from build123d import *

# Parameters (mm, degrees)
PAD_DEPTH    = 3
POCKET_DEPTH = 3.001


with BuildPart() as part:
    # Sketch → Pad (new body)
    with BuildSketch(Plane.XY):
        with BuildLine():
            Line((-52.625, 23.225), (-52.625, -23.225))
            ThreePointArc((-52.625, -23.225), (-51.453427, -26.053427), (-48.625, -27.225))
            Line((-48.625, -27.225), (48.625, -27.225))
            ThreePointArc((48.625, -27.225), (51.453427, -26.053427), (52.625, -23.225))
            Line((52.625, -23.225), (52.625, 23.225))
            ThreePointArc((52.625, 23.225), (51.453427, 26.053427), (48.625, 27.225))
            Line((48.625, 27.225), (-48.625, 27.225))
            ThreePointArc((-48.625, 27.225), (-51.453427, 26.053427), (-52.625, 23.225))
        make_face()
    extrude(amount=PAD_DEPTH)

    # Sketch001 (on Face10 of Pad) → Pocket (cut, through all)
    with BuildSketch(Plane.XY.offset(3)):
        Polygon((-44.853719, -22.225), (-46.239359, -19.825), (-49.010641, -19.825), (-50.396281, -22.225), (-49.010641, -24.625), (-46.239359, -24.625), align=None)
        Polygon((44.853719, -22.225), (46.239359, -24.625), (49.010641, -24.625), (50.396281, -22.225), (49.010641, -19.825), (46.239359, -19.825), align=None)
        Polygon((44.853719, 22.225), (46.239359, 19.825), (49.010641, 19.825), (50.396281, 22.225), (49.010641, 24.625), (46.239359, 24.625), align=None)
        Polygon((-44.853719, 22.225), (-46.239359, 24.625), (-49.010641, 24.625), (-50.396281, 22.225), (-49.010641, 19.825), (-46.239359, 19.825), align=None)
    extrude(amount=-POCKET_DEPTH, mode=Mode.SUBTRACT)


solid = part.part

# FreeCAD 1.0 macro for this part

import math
import FreeCAD as App
import Part
import Sketcher
Q = App.Units.Quantity

doc = App.newDocument("Part")
body = doc.addObject("PartDesign::Body", "Body")

# Sketch on XY plane
sketch1 = body.newObject("Sketcher::SketchObject", "Sketch")
sketch1.AttachmentSupport = (doc.getObject("XY_Plane"), [""])
sketch1.MapMode = "FlatFace"
sketch1.addGeometry(Part.LineSegment(App.Vector(-52.625, 23.225, 0), App.Vector(-52.625, -23.225, 0)), False)
sketch1.addGeometry(Part.ArcOfCircle(Part.Circle(App.Vector(-48.625, -23.225, 0), App.Vector(0, 0, 1), 4), math.radians(-179.999994), math.radians(-90.000006)), False)
sketch1.addGeometry(Part.LineSegment(App.Vector(-48.625, -27.225, 0), App.Vector(48.625, -27.225, 0)), False)
sketch1.addGeometry(Part.ArcOfCircle(Part.Circle(App.Vector(48.625, -23.225, 0), App.Vector(0, 0, 1), 4), math.radians(-89.999994), math.radians(-0.000006)), False)
sketch1.addGeometry(Part.LineSegment(App.Vector(52.625, -23.225, 0), App.Vector(52.625, 23.225, 0)), False)
sketch1.addGeometry(Part.ArcOfCircle(Part.Circle(App.Vector(48.625, 23.225, 0), App.Vector(0, 0, 1), 4), math.radians(0.000006), math.radians(89.999994)), False)
sketch1.addGeometry(Part.LineSegment(App.Vector(48.625, 27.225, 0), App.Vector(-48.625, 27.225, 0)), False)
sketch1.addGeometry(Part.ArcOfCircle(Part.Circle(App.Vector(-48.625, 23.225, 0), App.Vector(0, 0, 1), 4), math.radians(90.000006), math.radians(179.999994)), False)
sketch1.addConstraint(Sketcher.Constraint("Tangent", 0, 2, 1, 1))
sketch1.addConstraint(Sketcher.Constraint("Tangent", 1, 2, 2, 1))
sketch1.addConstraint(Sketcher.Constraint("Tangent", 2, 2, 3, 1))
sketch1.addConstraint(Sketcher.Constraint("Tangent", 3, 2, 4, 1))
sketch1.addConstraint(Sketcher.Constraint("Tangent", 4, 2, 5, 1))
sketch1.addConstraint(Sketcher.Constraint("Tangent", 5, 2, 6, 1))
sketch1.addConstraint(Sketcher.Constraint("Tangent", 6, 2, 7, 1))
sketch1.addConstraint(Sketcher.Constraint("Tangent", 7, 2, 0, 1))
sketch1.addConstraint(Sketcher.Constraint("Vertical", 0))
sketch1.addConstraint(Sketcher.Constraint("Horizontal", 2))
sketch1.addConstraint(Sketcher.Constraint("Vertical", 4))
sketch1.addConstraint(Sketcher.Constraint("Horizontal", 6))
sketch1.addConstraint(Sketcher.Constraint("Equal", 1, 3))
sketch1.addConstraint(Sketcher.Constraint("Equal", 3, 5))
sketch1.addConstraint(Sketcher.Constraint("Equal", 5, 7))
sketch1.addConstraint(Sketcher.Constraint("Symmetric", 1, 3, 5, 3, -1, 1))
sketch1.addConstraint(Sketcher.Constraint("Radius", 1, Q("4 mm")))
sketch1.addConstraint(Sketcher.Constraint("DistanceX", 2, 1, 2, 2, Q("97.25 mm")))
sketch1.addConstraint(Sketcher.Constraint("DistanceY", 0, 2, 0, 1, Q("46.45 mm")))
pad1 = body.newObject("PartDesign::Pad", "Pad")
pad1.Profile = sketch1
pad1.Length = 3

# Sketch on XY plane
sketch2 = body.newObject("Sketcher::SketchObject", "Sketch001")
sketch2.AttachmentSupport = (doc.getObject("XY_Plane"), [""])
sketch2.MapMode = "FlatFace"
sketch2.AttachmentOffset = App.Placement(App.Vector(0, 0, 3), App.Rotation())
sketch2.addGeometry(Part.LineSegment(App.Vector(-44.853719, -22.225, 0), App.Vector(-46.239359, -19.825, 0)), False)
sketch2.addGeometry(Part.LineSegment(App.Vector(-46.239359, -19.825, 0), App.Vector(-49.010641, -19.825, 0)), False)
sketch2.addGeometry(Part.LineSegment(App.Vector(-49.010641, -19.825, 0), App.Vector(-50.396281, -22.225, 0)), False)
sketch2.addGeometry(Part.LineSegment(App.Vector(-50.396281, -22.225, 0), App.Vector(-49.010641, -24.625, 0)), False)
sketch2.addGeometry(Part.LineSegment(App.Vector(-49.010641, -24.625, 0), App.Vector(-46.239359, -24.625, 0)), False)
sketch2.addGeometry(Part.LineSegment(App.Vector(-46.239359, -24.625, 0), App.Vector(-44.853719, -22.225, 0)), False)
sketch2.addGeometry(Part.LineSegment(App.Vector(44.853719, -22.225, 0), App.Vector(46.239359, -24.625, 0)), False)
sketch2.addGeometry(Part.LineSegment(App.Vector(46.239359, -24.625, 0), App.Vector(49.010641, -24.625, 0)), False)
sketch2.addGeometry(Part.LineSegment(App.Vector(49.010641, -24.625, 0), App.Vector(50.396281, -22.225, 0)), False)
sketch2.addGeometry(Part.LineSegment(App.Vector(50.396281, -22.225, 0), App.Vector(49.010641, -19.825, 0)), False)
sketch2.addGeometry(Part.LineSegment(App.Vector(49.010641, -19.825, 0), App.Vector(46.239359, -19.825, 0)), False)
sketch2.addGeometry(Part.LineSegment(App.Vector(46.239359, -19.825, 0), App.Vector(44.853719, -22.225, 0)), False)
sketch2.addGeometry(Part.LineSegment(App.Vector(44.853719, 22.225, 0), App.Vector(46.239359, 19.825, 0)), False)
sketch2.addGeometry(Part.LineSegment(App.Vector(46.239359, 19.825, 0), App.Vector(49.010641, 19.825, 0)), False)
sketch2.addGeometry(Part.LineSegment(App.Vector(49.010641, 19.825, 0), App.Vector(50.396281, 22.225, 0)), False)
sketch2.addGeometry(Part.LineSegment(App.Vector(50.396281, 22.225, 0), App.Vector(49.010641, 24.625, 0)), False)
sketch2.addGeometry(Part.LineSegment(App.Vector(49.010641, 24.625, 0), App.Vector(46.239359, 24.625, 0)), False)
sketch2.addGeometry(Part.LineSegment(App.Vector(46.239359, 24.625, 0), App.Vector(44.853719, 22.225, 0)), False)
sketch2.addGeometry(Part.LineSegment(App.Vector(-44.853719, 22.225, 0), App.Vector(-46.239359, 24.625, 0)), False)
sketch2.addGeometry(Part.LineSegment(App.Vector(-46.239359, 24.625, 0), App.Vector(-49.010641, 24.625, 0)), False)
sketch2.addGeometry(Part.LineSegment(App.Vector(-49.010641, 24.625, 0), App.Vector(-50.396281, 22.225, 0)), False)
sketch2.addGeometry(Part.LineSegment(App.Vector(-50.396281, 22.225, 0), App.Vector(-49.010641, 19.825, 0)), False)
sketch2.addGeometry(Part.LineSegment(App.Vector(-49.010641, 19.825, 0), App.Vector(-46.239359, 19.825, 0)), False)
sketch2.addGeometry(Part.LineSegment(App.Vector(-46.239359, 19.825, 0), App.Vector(-44.853719, 22.225, 0)), False)
sketch2.addConstraint(Sketcher.Constraint("Coincident", 0, 2, 1, 1))
sketch2.addConstraint(Sketcher.Constraint("Coincident", 1, 2, 2, 1))
sketch2.addConstraint(Sketcher.Constraint("Coincident", 2, 2, 3, 1))
sketch2.addConstraint(Sketcher.Constraint("Coincident", 3, 2, 4, 1))
sketch2.addConstraint(Sketcher.Constraint("Coincident", 4, 2, 5, 1))
sketch2.addConstraint(Sketcher.Constraint("Coincident", 5, 2, 0, 1))
sketch2.addConstraint(Sketcher.Constraint("Coincident", 6, 2, 7, 1))
sketch2.addConstraint(Sketcher.Constraint("Coincident", 7, 2, 8, 1))
sketch2.addConstraint(Sketcher.Constraint("Coincident", 8, 2, 9, 1))
sketch2.addConstraint(Sketcher.Constraint("Coincident", 9, 2, 10, 1))
sketch2.addConstraint(Sketcher.Constraint("Coincident", 10, 2, 11, 1))
sketch2.addConstraint(Sketcher.Constraint("Coincident", 11, 2, 6, 1))
sketch2.addConstraint(Sketcher.Constraint("Coincident", 12, 2, 13, 1))
sketch2.addConstraint(Sketcher.Constraint("Coincident", 13, 2, 14, 1))
sketch2.addConstraint(Sketcher.Constraint("Coincident", 14, 2, 15, 1))
sketch2.addConstraint(Sketcher.Constraint("Coincident", 15, 2, 16, 1))
sketch2.addConstraint(Sketcher.Constraint("Coincident", 16, 2, 17, 1))
sketch2.addConstraint(Sketcher.Constraint("Coincident", 17, 2, 12, 1))
sketch2.addConstraint(Sketcher.Constraint("Coincident", 18, 2, 19, 1))
sketch2.addConstraint(Sketcher.Constraint("Coincident", 19, 2, 20, 1))
sketch2.addConstraint(Sketcher.Constraint("Coincident", 20, 2, 21, 1))
sketch2.addConstraint(Sketcher.Constraint("Coincident", 21, 2, 22, 1))
sketch2.addConstraint(Sketcher.Constraint("Coincident", 22, 2, 23, 1))
sketch2.addConstraint(Sketcher.Constraint("Coincident", 23, 2, 18, 1))
sketch2.addConstraint(Sketcher.Constraint("Horizontal", 1))
sketch2.addConstraint(Sketcher.Constraint("Horizontal", 4))
sketch2.addConstraint(Sketcher.Constraint("Horizontal", 7))
sketch2.addConstraint(Sketcher.Constraint("Horizontal", 10))
sketch2.addConstraint(Sketcher.Constraint("Horizontal", 13))
sketch2.addConstraint(Sketcher.Constraint("Horizontal", 16))
sketch2.addConstraint(Sketcher.Constraint("Horizontal", 19))
sketch2.addConstraint(Sketcher.Constraint("Horizontal", 22))
sketch2.addConstraint(Sketcher.Constraint("Symmetric", 0, 2, 12, 2, -1, 1))
sketch2.addConstraint(Sketcher.Constraint("Symmetric", 2, 2, 14, 2, -1, 1))
sketch2.addConstraint(Sketcher.Constraint("Symmetric", 3, 2, 15, 2, -1, 1))
sketch2.addConstraint(Sketcher.Constraint("Symmetric", 5, 2, 17, 2, -1, 1))
sketch2.addConstraint(Sketcher.Constraint("Symmetric", 6, 2, 18, 2, -1, 1))
sketch2.addConstraint(Sketcher.Constraint("Symmetric", 8, 2, 20, 2, -1, 1))
sketch2.addConstraint(Sketcher.Constraint("Symmetric", 9, 2, 21, 2, -1, 1))
sketch2.addConstraint(Sketcher.Constraint("Symmetric", 11, 2, 23, 2, -1, 1))
sketch2.addConstraint(Sketcher.Constraint("Symmetric", 4, 2, 6, 2, -2))
sketch2.addConstraint(Sketcher.Constraint("Symmetric", 2, 2, 8, 2, -2))
sketch2.addConstraint(Sketcher.Constraint("Symmetric", 1, 2, 9, 2, -2))
sketch2.addConstraint(Sketcher.Constraint("Symmetric", 5, 2, 11, 2, -2))
sketch2.addConstraint(Sketcher.Constraint("Parallel", 0, 3))
sketch2.addConstraint(Sketcher.Constraint("Parallel", 2, 5))
sketch2.addConstraint(Sketcher.Constraint("Parallel", 3, 6))
sketch2.addConstraint(Sketcher.Constraint("Parallel", 5, 8))
sketch2.addConstraint(Sketcher.Constraint("Parallel", 8, 11))
sketch2.addConstraint(Sketcher.Constraint("Parallel", 11, 14))
sketch2.addConstraint(Sketcher.Constraint("Parallel", 14, 17))
sketch2.addConstraint(Sketcher.Constraint("Parallel", 17, 20))
sketch2.addConstraint(Sketcher.Constraint("Parallel", 20, 23))
sketch2.addConstraint(Sketcher.Constraint("Horizontal", 2, 2, 5, 2))
sketch2.addConstraint(Sketcher.Constraint("Vertical", 1, 2, 3, 2))
sketch2.addConstraint(Sketcher.Constraint("Angle", 0, Q("119.999988 deg")))
sketch2.addConstraint(Sketcher.Constraint("DistanceY", 2, 2, 1, 2, Q("2.4 mm")))
sketch2.addConstraint(Sketcher.Constraint("DistanceX", 3, 2, 6, 2, Q("95.25 mm")))
sketch2.addConstraint(Sketcher.Constraint("DistanceY", 10, 2, 12, 2, Q("39.65 mm")))
sketch2.addConstraint(Sketcher.Constraint("DistanceX", 1, 2, 1, 1, Q("2.771282 mm")))
pocket1 = body.newObject("PartDesign::Pocket", "Pocket")
pocket1.Profile = sketch2
pocket1.Type = "ThroughAll"

doc.recompute()
